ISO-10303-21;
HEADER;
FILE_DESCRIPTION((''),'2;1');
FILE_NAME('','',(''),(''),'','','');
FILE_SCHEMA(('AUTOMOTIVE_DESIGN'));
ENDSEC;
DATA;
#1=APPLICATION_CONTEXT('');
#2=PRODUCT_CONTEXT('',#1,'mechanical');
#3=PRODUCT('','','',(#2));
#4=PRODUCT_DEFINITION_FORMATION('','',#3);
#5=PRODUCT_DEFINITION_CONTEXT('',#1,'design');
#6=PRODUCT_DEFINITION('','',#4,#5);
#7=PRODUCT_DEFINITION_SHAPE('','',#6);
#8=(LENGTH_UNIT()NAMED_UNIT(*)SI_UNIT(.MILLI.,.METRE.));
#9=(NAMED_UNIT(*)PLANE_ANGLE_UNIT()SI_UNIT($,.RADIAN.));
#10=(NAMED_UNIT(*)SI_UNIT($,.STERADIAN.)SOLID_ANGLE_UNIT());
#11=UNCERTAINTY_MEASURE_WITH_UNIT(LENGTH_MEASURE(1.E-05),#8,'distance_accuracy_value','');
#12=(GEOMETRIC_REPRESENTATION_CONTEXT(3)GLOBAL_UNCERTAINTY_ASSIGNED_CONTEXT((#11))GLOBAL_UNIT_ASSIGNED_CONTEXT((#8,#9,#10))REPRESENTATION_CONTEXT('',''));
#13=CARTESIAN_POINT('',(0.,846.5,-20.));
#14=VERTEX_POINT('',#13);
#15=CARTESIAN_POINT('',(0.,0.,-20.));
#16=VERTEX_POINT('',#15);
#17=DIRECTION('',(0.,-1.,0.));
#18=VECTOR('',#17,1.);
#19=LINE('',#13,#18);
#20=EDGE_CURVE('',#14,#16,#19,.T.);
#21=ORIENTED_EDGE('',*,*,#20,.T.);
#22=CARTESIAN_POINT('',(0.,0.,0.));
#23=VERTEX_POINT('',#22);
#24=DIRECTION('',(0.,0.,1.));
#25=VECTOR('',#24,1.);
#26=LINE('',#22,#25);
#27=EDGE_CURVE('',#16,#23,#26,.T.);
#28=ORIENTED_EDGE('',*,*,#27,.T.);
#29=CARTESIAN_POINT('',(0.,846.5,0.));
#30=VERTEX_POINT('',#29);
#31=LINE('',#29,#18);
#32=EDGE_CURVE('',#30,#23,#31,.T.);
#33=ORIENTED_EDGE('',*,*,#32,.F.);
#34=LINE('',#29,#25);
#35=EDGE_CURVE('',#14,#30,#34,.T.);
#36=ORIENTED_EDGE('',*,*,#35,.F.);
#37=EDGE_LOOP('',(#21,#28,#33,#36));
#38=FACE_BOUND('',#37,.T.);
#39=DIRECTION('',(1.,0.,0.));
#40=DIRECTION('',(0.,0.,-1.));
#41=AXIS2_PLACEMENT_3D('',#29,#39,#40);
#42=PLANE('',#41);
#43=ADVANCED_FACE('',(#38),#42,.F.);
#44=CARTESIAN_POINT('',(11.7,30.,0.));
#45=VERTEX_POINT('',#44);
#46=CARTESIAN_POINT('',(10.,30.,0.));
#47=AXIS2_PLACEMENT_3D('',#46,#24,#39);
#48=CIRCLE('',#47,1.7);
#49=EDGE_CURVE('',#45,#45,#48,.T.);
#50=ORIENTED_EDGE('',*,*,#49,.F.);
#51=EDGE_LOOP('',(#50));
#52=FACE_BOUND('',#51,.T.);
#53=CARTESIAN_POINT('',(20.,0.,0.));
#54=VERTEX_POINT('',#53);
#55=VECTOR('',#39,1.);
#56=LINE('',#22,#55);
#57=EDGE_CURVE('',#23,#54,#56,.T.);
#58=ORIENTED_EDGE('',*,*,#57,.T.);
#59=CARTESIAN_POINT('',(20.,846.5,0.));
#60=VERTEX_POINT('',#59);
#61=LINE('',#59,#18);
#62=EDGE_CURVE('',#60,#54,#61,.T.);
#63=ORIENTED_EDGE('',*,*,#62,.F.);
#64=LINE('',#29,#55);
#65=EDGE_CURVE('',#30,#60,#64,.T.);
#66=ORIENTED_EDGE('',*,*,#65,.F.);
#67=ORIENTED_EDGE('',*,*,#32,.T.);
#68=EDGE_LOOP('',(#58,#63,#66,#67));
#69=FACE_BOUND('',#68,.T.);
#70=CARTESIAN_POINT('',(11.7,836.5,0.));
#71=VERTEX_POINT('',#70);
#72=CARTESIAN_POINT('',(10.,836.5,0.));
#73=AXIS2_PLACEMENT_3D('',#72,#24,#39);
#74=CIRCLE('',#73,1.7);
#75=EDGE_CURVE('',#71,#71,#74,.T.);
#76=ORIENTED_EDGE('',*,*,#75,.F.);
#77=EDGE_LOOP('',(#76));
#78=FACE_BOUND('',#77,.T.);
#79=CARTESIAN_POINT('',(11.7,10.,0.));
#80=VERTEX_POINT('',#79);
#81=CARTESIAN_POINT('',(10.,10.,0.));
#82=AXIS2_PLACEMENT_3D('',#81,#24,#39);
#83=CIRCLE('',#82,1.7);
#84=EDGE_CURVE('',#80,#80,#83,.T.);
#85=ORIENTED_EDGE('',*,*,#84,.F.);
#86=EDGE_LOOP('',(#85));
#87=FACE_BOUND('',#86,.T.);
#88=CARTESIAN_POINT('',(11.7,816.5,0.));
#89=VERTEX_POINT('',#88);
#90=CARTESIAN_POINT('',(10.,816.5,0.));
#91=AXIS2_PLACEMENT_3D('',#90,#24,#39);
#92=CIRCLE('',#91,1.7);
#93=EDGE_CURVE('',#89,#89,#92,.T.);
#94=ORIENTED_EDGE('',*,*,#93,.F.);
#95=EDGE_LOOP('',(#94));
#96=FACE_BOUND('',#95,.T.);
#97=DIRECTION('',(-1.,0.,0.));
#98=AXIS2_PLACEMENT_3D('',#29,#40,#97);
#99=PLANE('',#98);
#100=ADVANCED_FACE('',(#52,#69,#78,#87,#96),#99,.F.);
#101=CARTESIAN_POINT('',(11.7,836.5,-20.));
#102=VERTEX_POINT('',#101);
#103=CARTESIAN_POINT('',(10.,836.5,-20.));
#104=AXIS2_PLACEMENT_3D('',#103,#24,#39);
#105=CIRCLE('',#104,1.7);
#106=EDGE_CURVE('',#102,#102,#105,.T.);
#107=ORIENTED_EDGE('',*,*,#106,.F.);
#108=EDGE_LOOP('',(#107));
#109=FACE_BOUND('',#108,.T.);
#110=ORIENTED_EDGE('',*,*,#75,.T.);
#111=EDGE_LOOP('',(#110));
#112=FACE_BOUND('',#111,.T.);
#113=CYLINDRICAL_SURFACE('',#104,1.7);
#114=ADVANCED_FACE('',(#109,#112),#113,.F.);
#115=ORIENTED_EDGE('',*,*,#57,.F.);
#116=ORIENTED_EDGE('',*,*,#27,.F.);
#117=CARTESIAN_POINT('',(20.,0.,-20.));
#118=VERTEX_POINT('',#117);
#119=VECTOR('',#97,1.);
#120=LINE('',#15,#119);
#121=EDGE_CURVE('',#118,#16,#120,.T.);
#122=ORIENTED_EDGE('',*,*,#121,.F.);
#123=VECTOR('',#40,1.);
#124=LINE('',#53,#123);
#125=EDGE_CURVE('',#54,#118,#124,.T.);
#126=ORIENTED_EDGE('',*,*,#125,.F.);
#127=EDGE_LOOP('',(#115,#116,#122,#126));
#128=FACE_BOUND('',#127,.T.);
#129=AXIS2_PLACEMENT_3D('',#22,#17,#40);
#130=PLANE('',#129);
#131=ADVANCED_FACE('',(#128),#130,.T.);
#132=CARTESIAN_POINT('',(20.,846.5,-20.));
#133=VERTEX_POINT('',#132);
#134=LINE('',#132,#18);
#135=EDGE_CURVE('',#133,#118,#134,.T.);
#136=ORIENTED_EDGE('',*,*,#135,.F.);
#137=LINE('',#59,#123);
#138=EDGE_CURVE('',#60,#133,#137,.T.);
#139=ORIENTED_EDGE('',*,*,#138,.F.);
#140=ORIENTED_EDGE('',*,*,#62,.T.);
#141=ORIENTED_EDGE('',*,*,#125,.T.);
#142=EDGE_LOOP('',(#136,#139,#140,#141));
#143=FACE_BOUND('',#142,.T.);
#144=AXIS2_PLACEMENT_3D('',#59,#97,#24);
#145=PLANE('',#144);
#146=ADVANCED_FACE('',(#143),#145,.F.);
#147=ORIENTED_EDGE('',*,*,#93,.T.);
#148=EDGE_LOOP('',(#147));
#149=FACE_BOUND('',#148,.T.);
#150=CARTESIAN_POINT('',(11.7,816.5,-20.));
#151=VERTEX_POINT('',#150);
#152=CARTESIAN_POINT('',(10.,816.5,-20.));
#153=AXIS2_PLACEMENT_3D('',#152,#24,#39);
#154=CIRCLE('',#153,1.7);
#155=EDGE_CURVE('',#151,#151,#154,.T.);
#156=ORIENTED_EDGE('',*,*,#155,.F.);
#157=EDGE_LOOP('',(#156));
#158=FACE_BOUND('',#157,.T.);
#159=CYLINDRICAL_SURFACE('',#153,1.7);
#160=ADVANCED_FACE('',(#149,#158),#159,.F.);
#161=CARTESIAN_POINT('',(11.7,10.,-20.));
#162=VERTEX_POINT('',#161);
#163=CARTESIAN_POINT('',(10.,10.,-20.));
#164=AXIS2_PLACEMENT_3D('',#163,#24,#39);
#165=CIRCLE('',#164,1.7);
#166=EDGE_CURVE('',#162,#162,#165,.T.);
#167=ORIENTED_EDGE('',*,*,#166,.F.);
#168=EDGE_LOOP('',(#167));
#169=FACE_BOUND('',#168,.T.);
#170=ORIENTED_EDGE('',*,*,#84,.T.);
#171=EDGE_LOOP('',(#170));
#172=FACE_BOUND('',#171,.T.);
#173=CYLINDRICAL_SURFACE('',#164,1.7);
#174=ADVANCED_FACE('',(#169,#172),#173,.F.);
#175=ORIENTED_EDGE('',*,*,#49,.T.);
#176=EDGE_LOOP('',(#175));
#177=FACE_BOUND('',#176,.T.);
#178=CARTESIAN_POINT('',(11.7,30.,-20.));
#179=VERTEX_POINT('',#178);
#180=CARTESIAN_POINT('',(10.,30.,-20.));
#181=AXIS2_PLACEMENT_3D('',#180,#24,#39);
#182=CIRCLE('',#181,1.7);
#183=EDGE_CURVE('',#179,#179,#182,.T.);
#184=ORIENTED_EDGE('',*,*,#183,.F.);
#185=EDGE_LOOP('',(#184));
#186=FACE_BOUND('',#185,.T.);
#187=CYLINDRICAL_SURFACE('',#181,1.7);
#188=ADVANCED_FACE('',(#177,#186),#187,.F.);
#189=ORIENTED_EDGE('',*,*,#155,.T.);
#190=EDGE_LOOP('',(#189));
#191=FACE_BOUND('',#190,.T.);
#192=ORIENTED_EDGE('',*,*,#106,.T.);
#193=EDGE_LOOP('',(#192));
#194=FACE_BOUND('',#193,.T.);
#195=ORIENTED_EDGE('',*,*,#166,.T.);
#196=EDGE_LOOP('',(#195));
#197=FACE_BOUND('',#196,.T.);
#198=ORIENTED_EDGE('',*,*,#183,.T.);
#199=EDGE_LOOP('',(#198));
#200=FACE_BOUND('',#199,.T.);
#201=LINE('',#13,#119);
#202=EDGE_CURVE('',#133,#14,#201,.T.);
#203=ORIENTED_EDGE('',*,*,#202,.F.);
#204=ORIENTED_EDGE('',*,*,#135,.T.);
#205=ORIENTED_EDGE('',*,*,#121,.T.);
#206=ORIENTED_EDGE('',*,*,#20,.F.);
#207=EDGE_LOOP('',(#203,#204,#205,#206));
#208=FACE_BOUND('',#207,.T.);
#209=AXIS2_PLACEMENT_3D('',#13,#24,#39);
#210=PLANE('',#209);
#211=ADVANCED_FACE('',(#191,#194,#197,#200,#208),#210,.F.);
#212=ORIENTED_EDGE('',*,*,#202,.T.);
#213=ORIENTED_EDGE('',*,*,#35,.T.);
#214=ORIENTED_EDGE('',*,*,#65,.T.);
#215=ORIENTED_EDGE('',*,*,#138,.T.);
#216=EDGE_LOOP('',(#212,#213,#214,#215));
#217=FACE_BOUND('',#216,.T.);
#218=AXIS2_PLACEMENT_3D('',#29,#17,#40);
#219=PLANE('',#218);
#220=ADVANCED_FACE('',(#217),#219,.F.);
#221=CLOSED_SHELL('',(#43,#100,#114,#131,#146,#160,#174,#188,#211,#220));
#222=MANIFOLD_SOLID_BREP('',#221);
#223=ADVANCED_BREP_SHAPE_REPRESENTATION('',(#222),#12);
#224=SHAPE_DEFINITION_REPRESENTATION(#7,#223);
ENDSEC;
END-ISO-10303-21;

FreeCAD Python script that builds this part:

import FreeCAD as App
import Part
import Sketcher


def add_polygon(sketch, points):
    """Adds a closed chain of lines whose ends are joined by coincident constraints."""
    first, n = sketch.GeometryCount, len(points)
    for a, b in zip(points, points[1:] + points[:1]):
        sketch.addGeometry(Part.LineSegment(App.Vector(*a, 0), App.Vector(*b, 0)), False)
    for i in range(n):
        sketch.addConstraint(Sketcher.Constraint("Coincident", first + i, 2, first + (i + 1) % n, 1))

doc = App.newDocument("Part")
body = doc.addObject("PartDesign::Body", "Body")

sketch1 = body.newObject("Sketcher::SketchObject", "Sketch")
sketch1.AttachmentSupport = (doc.getObject("XZ_Plane"), [""])
sketch1.MapMode = "FlatFace"
add_polygon(sketch1, [(0, -20), (0, 0), (20, 0), (20, -20)])
sketch1.addConstraint([
    Sketcher.Constraint("Vertical", 0),
    Sketcher.Constraint("Horizontal", 1),
    Sketcher.Constraint("Vertical", 2),
    Sketcher.Constraint("Horizontal", 3),
    Sketcher.Constraint("Coincident", 0, 2, -1, 1),
    Sketcher.Constraint("Equal", 3, 0),
    Sketcher.Constraint("DistanceX", 1, 1, 1, 2, 20.0),
])
pad1 = body.newObject("PartDesign::Pad", "Pad")
pad1.Profile = sketch1
pad1.Length = 846.5
pad1.Reversed = True

sketch2 = body.newObject("Sketcher::SketchObject", "Sketch001")
sketch2.AttachmentSupport = (doc.getObject("XY_Plane"), [""])
sketch2.MapMode = "FlatFace"
sketch2.addGeometry([
    Part.Circle(App.Vector(10, 10, 0), App.Vector(0, 0, 1), 1.7),
    Part.Circle(App.Vector(10, 30, 0), App.Vector(0, 0, 1), 1.7),
    Part.Circle(App.Vector(10, 836.5, 0), App.Vector(0, 0, 1), 1.7),
    Part.Circle(App.Vector(10, 816.5, 0), App.Vector(0, 0, 1), 1.7),
], False)
sketch2.addConstraint([
    Sketcher.Constraint("Equal", 0, 1),
    Sketcher.Constraint("Equal", 1, 2),
    Sketcher.Constraint("Equal", 2, 3),
    Sketcher.Constraint("Vertical", 0, 3, 1, 3),
    Sketcher.Constraint("Vertical", 1, 3, 2, 3),
    Sketcher.Constraint("Vertical", 2, 3, 3, 3),
    Sketcher.Constraint("Diameter", 0, 3.4),
    Sketcher.Constraint("DistanceX", -1, 1, 0, 3, 10.0),
    Sketcher.Constraint("DistanceY", -1, 1, 0, 3, 10.0),
    Sketcher.Constraint("DistanceY", -1, 1, 1, 3, 30.0),
    Sketcher.Constraint("DistanceY", 3, 3, 2, 3, 20.0),
    Sketcher.Constraint("DistanceY", -1, 1, 2, 3, 836.5),
])
pocket1 = body.newObject("PartDesign::Pocket", "Pocket")
pocket1.Profile = sketch2
pocket1.Type = "ThroughAll"

doc.recompute()
